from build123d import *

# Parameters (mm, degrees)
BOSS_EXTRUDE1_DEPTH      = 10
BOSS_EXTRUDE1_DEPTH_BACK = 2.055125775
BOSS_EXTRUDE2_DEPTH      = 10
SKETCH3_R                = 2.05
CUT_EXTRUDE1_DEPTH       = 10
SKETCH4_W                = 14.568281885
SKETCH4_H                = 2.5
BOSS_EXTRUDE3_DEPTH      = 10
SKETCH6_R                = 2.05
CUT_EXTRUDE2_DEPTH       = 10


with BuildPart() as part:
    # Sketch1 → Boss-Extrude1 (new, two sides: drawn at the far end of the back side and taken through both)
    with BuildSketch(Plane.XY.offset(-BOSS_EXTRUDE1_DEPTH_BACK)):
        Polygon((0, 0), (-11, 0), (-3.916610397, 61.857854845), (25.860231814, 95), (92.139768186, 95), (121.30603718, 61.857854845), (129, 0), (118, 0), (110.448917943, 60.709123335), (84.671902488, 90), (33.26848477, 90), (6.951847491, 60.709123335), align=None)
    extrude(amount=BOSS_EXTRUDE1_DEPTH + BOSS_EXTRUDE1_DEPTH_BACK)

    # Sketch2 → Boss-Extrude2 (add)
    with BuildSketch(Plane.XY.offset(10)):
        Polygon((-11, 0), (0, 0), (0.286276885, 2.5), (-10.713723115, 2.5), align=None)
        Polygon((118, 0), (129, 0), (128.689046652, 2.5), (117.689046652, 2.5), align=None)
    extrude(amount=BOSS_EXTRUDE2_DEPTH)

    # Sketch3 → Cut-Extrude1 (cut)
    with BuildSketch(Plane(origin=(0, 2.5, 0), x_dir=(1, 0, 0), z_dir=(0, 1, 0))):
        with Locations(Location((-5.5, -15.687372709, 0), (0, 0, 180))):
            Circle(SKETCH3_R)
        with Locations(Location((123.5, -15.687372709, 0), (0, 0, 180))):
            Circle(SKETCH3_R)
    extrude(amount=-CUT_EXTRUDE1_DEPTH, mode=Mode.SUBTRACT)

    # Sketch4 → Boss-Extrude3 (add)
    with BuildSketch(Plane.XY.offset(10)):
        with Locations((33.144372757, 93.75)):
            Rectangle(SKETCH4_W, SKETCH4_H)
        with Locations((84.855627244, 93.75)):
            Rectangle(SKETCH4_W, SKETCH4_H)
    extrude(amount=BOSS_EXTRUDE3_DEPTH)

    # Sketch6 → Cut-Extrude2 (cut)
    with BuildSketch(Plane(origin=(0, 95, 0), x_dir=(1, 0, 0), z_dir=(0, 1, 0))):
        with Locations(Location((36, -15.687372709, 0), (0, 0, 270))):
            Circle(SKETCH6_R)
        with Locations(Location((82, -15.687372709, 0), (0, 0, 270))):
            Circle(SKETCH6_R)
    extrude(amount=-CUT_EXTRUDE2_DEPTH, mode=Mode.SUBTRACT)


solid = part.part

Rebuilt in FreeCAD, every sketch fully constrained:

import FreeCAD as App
import Part
import Sketcher

V = App.Vector
Q = App.Units.Quantity


def add_polygon(sketch, points):
    """Adds a closed chain of lines whose ends are joined by coincident constraints."""
    first, n = sketch.GeometryCount, len(points)
    for a, b in zip(points, points[1:] + points[:1]):
        sketch.addGeometry(Part.LineSegment(App.Vector(*a, 0), App.Vector(*b, 0)), False)
    for i in range(n):
        sketch.addConstraint(Sketcher.Constraint("Coincident", first + i, 2, first + (i + 1) % n, 1))

doc = App.newDocument("Part")
params = doc.addObject("Spreadsheet::Sheet", "Params")
for row, (alias, value) in enumerate([
    ("sketch1_width", "11 mm"),
    ("pad1_length", "10 mm"),
    ("pad1_length2", "2.055126 mm"),
    ("sketch2_width", "11 mm"),
    ("pad2_length", "10 mm"),
    ("sketch3_diameter", "4.1 mm"),
    ("pocket1_length", "10 mm"),
    ("sketch4_height", "2.5 mm"),
    ("pad3_length", "10 mm"),
    ("sketch5_diameter", "4.1 mm"),
    ("pocket2_length", "10 mm"),
], start=1):
    params.set(f"A{row}", alias)
    params.set(f"B{row}", "=" + value)
    params.setAlias(f"B{row}", alias)

body = doc.addObject("PartDesign::Body", "Body")

# Sketch on XY plane
sketch1 = body.newObject("Sketcher::SketchObject", "Sketch")
sketch1.AttachmentSupport = (doc.getObject("XY_Plane"), [""])
sketch1.MapMode = "FlatFace"
add_polygon(sketch1, [(-11, 0), (0, 0), (7, 61), (33, 90), (85, 90), (110, 61), (118, 0), (129, 0), (121, 62), (92, 95), (26, 95), (-4, 62)])  # lines 0-11
sketch1.addConstraint(Sketcher.Constraint("Horizontal", 0))
sketch1.addConstraint(Sketcher.Constraint("Horizontal", 3))
sketch1.addConstraint(Sketcher.Constraint("Horizontal", 6))
sketch1.addConstraint(Sketcher.Constraint("Horizontal", 9))
sketch1.addConstraint(Sketcher.Constraint("Coincident", 0, 2, -1, 1))
sketch1.addConstraint(Sketcher.Constraint("PointOnObject", 5, 2, -1))
sketch1.addConstraint(Sketcher.Constraint("Parallel", 5, 7))
sketch1.addConstraint(Sketcher.Constraint("Parallel", 4, 8))
sketch1.addConstraint(Sketcher.Constraint("Parallel", 2, 10))
sketch1.addConstraint(Sketcher.Constraint("Parallel", 1, 11))
sketch1.addConstraint(Sketcher.Constraint("Horizontal", 1, 2, 4, 2))
sketch1.addConstraint(Sketcher.Constraint("Horizontal", 7, 2, 10, 2))
sketch1.addConstraint(Sketcher.Constraint("Equal", 0, 6))
sketch1.addConstraint(Sketcher.Constraint("DistanceX", 0, 1, 0, 2, Q("11 mm")))
sketch1.addConstraint(Sketcher.Constraint("DistanceY", -1, 1, 2, 2, Q("90 mm")))
sketch1.addConstraint(Sketcher.Constraint("DistanceX", -1, 1, 5, 2, Q("118 mm")))
sketch1.addConstraint(Sketcher.Constraint("DistanceY", -1, 1, 8, 2, Q("95 mm")))
sketch1.addConstraint(Sketcher.Constraint("Distance", 7, Q("62.334511 mm")))
sketch1.addConstraint(Sketcher.Constraint("DistanceX", 3, 1, 3, 2, Q("51.403418 mm")))
sketch1.addConstraint(Sketcher.Constraint("DistanceX", 9, 2, 9, 1, Q("66.279536 mm")))
sketch1.addConstraint(Sketcher.Constraint("DistanceX", -1, 1, 8, 2, Q("92.139768 mm")))
sketch1.addConstraint(Sketcher.Constraint("DistanceX", 10, 2, -1, 1, Q("3.91661 mm")))
sketch1.addConstraint(Sketcher.Constraint("DistanceX", 1, 2, 4, 2, Q("103.49707 mm")))
sketch1.setExpression("Constraints[25]", "Params.sketch1_width")
pad1 = body.newObject("PartDesign::Pad", "Pad")
pad1.Profile = sketch1
pad1.Type = "TwoLengths"
pad1.setExpression("Length", "Params.pad1_length")
pad1.setExpression("Length2", "Params.pad1_length2")

# Sketch on XY plane
sketch2 = body.newObject("Sketcher::SketchObject", "Sketch001")
sketch2.AttachmentSupport = (doc.getObject("XY_Plane"), [""])
sketch2.MapMode = "FlatFace"
sketch2.AttachmentOffset = App.Placement(V(0, 0, 10), App.Rotation())
add_polygon(sketch2, [(-11, 0), (0, 0), (0.3, 2.5), (-10.7, 2.5)])  # lines 0-3
add_polygon(sketch2, [(118, 0), (129, 0), (128.7, 2.5), (117.7, 2.5)])  # lines 4-7
sketch2.addConstraint(Sketcher.Constraint("Horizontal", 0))
sketch2.addConstraint(Sketcher.Constraint("Horizontal", 2))
sketch2.addConstraint(Sketcher.Constraint("Horizontal", 4))
sketch2.addConstraint(Sketcher.Constraint("Horizontal", 6))
sketch2.addConstraint(Sketcher.Constraint("Coincident", 0, 2, -1, 1))
sketch2.addConstraint(Sketcher.Constraint("PointOnObject", 4, 2, -1))
sketch2.addConstraint(Sketcher.Constraint("Parallel", 1, 3))
sketch2.addConstraint(Sketcher.Constraint("Parallel", 5, 7))
sketch2.addConstraint(Sketcher.Constraint("Horizontal", 2, 2, 5, 2))
sketch2.addConstraint(Sketcher.Constraint("Equal", 2, 4))
sketch2.addConstraint(Sketcher.Constraint("DistanceX", 0, 1, 0, 2, Q("11 mm")))
sketch2.addConstraint(Sketcher.Constraint("DistanceX", -1, 1, 4, 2, Q("129 mm")))
sketch2.addConstraint(Sketcher.Constraint("DistanceY", -1, 1, 1, 2, Q("2.5 mm")))
sketch2.addConstraint(Sketcher.Constraint("DistanceX", 1, 2, 5, 2, Q("128.40277 mm")))
sketch2.addConstraint(Sketcher.Constraint("Distance", 1, Q("2.516338 mm")))
sketch2.setExpression("Constraints[18]", "Params.sketch2_width")
pad2 = body.newObject("PartDesign::Pad", "Pad001")
pad2.Profile = sketch2
pad2.setExpression("Length", "Params.pad2_length")

# Sketch on XZ plane
sketch3 = body.newObject("Sketcher::SketchObject", "Sketch002")
sketch3.AttachmentSupport = (doc.getObject("XZ_Plane"), [""])
sketch3.MapMode = "FlatFace"
sketch3.AttachmentOffset = App.Placement(V(0, 0, -2.5), App.Rotation())
sketch3.addGeometry(Part.Circle(V(-5.5, 15.7, 0), V(0, 0, 1), 2), False)
sketch3.addGeometry(Part.Circle(V(123.5, 15.7, 0), V(0, 0, 1), 2), False)
sketch3.addConstraint(Sketcher.Constraint("Equal", 0, 1))
sketch3.addConstraint(Sketcher.Constraint("Horizontal", 0, 3, 1, 3))
sketch3.addConstraint(Sketcher.Constraint("Diameter", 0, Q("4.1 mm")))
sketch3.addConstraint(Sketcher.Constraint("DistanceX", 0, 3, 1, 3, Q("129 mm")))
sketch3.addConstraint(Sketcher.Constraint("DistanceX", 0, 3, -1, 1, Q("5.5 mm")))
sketch3.addConstraint(Sketcher.Constraint("DistanceY", -1, 1, 0, 3, Q("15.687373 mm")))
sketch3.setExpression("Constraints[2]", "Params.sketch3_diameter")
pocket1 = body.newObject("PartDesign::Pocket", "Pocket")
pocket1.Profile = sketch3
pocket1.setExpression("Length", "Params.pocket1_length")
pocket1.Reversed = True

# Sketch on XY plane
sketch4 = body.newObject("Sketcher::SketchObject", "Sketch003")
sketch4.AttachmentSupport = (doc.getObject("XY_Plane"), [""])
sketch4.MapMode = "FlatFace"
sketch4.AttachmentOffset = App.Placement(V(0, 0, 10), App.Rotation())
add_polygon(sketch4, [(25.9, 95), (25.9, 92.5), (40.4, 92.5), (40.4, 95)])  # lines 0-3
add_polygon(sketch4, [(77.6, 95), (77.6, 92.5), (92.1, 92.5), (92.1, 95)])  # lines 4-7
sketch4.addConstraint(Sketcher.Constraint("Vertical", 0))
sketch4.addConstraint(Sketcher.Constraint("Horizontal", 1))
sketch4.addConstraint(Sketcher.Constraint("Vertical", 2))
sketch4.addConstraint(Sketcher.Constraint("Horizontal", 3))
sketch4.addConstraint(Sketcher.Constraint("Vertical", 4))
sketch4.addConstraint(Sketcher.Constraint("Horizontal", 5))
sketch4.addConstraint(Sketcher.Constraint("Vertical", 6))
sketch4.addConstraint(Sketcher.Constraint("Horizontal", 7))
sketch4.addConstraint(Sketcher.Constraint("Horizontal", 1, 2, 4, 2))
sketch4.addConstraint(Sketcher.Constraint("Horizontal", 3, 2, 6, 2))
sketch4.addConstraint(Sketcher.Constraint("Equal", 3, 5))
sketch4.addConstraint(Sketcher.Constraint("DistanceY", 0, 2, 0, 1, Q("2.5 mm")))
sketch4.addConstraint(Sketcher.Constraint("DistanceY", -1, 1, 2, 2, Q("95 mm")))
sketch4.addConstraint(Sketcher.Constraint("DistanceX", 1, 1, 1, 2, Q("14.568282 mm")))
sketch4.addConstraint(Sketcher.Constraint("DistanceX", -1, 1, 0, 2, Q("25.860232 mm")))
sketch4.addConstraint(Sketcher.Constraint("DistanceX", -1, 1, 5, 2, Q("92.139768 mm")))
sketch4.setExpression("Constraints[19]", "Params.sketch4_height")
pad3 = body.newObject("PartDesign::Pad", "Pad002")
pad3.Profile = sketch4
pad3.setExpression("Length", "Params.pad3_length")

# Sketch on XZ plane
sketch5 = body.newObject("Sketcher::SketchObject", "Sketch004")
sketch5.AttachmentSupport = (doc.getObject("XZ_Plane"), [""])
sketch5.MapMode = "FlatFace"
sketch5.AttachmentOffset = App.Placement(V(0, 0, -95), App.Rotation())
sketch5.addGeometry(Part.Circle(V(36, 15.7, 0), V(0, 0, 1), 2), False)
sketch5.addGeometry(Part.Circle(V(82, 15.7, 0), V(0, 0, 1), 2), False)
sketch5.addConstraint(Sketcher.Constraint("Equal", 0, 1))
sketch5.addConstraint(Sketcher.Constraint("Horizontal", 0, 3, 1, 3))
sketch5.addConstraint(Sketcher.Constraint("Diameter", 0, Q("4.1 mm")))
sketch5.addConstraint(Sketcher.Constraint("DistanceX", -1, 1, 0, 3, Q("36 mm")))
sketch5.addConstraint(Sketcher.Constraint("DistanceX", -1, 1, 1, 3, Q("82 mm")))
sketch5.addConstraint(Sketcher.Constraint("DistanceY", -1, 1, 0, 3, Q("15.687373 mm")))
sketch5.setExpression("Constraints[2]", "Params.sketch5_diameter")
pocket2 = body.newObject("PartDesign::Pocket", "Pocket001")
pocket2.Profile = sketch5
pocket2.setExpression("Length", "Params.pocket2_length")
pocket2.Reversed = True

doc.recompute()
